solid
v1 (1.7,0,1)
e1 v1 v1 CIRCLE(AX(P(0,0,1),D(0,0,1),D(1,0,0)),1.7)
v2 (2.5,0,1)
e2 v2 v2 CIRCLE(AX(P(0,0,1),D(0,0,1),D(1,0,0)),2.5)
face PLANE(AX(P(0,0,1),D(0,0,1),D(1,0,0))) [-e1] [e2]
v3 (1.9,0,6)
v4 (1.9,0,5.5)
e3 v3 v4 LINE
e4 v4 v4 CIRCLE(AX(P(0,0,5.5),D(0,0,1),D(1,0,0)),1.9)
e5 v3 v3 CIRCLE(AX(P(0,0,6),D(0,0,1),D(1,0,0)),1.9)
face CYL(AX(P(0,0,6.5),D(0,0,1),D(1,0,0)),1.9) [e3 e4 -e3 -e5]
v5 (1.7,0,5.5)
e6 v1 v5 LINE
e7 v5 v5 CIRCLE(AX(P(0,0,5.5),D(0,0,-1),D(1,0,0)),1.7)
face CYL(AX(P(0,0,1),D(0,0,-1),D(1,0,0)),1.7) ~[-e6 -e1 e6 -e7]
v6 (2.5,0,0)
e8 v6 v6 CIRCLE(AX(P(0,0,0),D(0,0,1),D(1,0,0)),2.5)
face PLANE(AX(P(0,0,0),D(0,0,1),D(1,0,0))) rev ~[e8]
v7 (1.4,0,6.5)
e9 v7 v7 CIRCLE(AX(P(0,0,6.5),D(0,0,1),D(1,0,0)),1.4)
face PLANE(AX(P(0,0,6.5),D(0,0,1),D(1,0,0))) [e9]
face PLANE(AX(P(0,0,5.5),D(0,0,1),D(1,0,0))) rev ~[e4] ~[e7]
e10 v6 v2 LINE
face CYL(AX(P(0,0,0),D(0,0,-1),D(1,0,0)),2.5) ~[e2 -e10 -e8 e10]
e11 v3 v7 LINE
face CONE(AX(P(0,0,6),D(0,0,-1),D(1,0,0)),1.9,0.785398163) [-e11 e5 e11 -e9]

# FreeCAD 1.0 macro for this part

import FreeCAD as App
import Part
import Sketcher
Q = App.Units.Quantity


def edges_at(feature, points):
    """Names of the edges that pass closest to the given points."""
    edges = feature.Shape.Edges
    near = lambda p: min(range(len(edges)), key=lambda i: edges[i].distToShape(Part.Vertex(*p))[0])
    return sorted({f"Edge{near(p) + 1}" for p in points})

doc = App.newDocument("Part")
body = doc.addObject("PartDesign::Body", "Body")

sketch1 = body.newObject("Sketcher::SketchObject", "Sketch")
sketch1.AttachmentSupport = (doc.getObject("XY_Plane"), [""])
sketch1.MapMode = "FlatFace"
sketch1.addGeometry(Part.Circle(App.Vector(0, 0, 0), App.Vector(0, 0, 1), 2.5), False)
sketch1.addConstraint([
    Sketcher.Constraint("Coincident", 0, 3, -1, 1),
    Sketcher.Constraint("Diameter", 0, Q("5 mm")),
])
pad1 = body.newObject("PartDesign::Pad", "Pad")
pad1.Profile = sketch1
pad1.Length = 1

sketch2 = body.newObject("Sketcher::SketchObject", "Sketch001")
sketch2.AttachmentSupport = (doc.getObject("XY_Plane"), [""])
sketch2.MapMode = "FlatFace"
sketch2.AttachmentOffset = App.Placement(App.Vector(0, 0, 1), App.Rotation())
sketch2.addGeometry(Part.Circle(App.Vector(0, 0, 0), App.Vector(0, 0, 1), 1.7), False)
sketch2.addConstraint([
    Sketcher.Constraint("Coincident", 0, 3, -1, 1),
    Sketcher.Constraint("Diameter", 0, Q("3.4 mm")),
])
pad2 = body.newObject("PartDesign::Pad", "Pad001")
pad2.Profile = sketch2
pad2.Length = 5.5

sketch3 = body.newObject("Sketcher::SketchObject", "Sketch002")
sketch3.AttachmentSupport = (doc.getObject("XY_Plane"), [""])
sketch3.MapMode = "FlatFace"
sketch3.AttachmentOffset = App.Placement(App.Vector(0, 0, 6.5), App.Rotation())
sketch3.addGeometry(Part.Circle(App.Vector(0, 0, 0), App.Vector(0, 0, 1), 1.9), False)
sketch3.addConstraint([
    Sketcher.Constraint("Coincident", 0, 3, -1, 1),
    Sketcher.Constraint("Diameter", 0, Q("3.8 mm")),
])
pad3 = body.newObject("PartDesign::Pad", "Pad002")
pad3.Profile = sketch3
pad3.Length = 1
pad3.Reversed = True
doc.recompute()

chamfer = body.newObject("PartDesign::Chamfer", "Chamfer")
chamfer.Base = (pad3, edges_at(pad3, [(-1.9, 0, 6.5)]))
chamfer.Size = 0.5

doc.recompute()
